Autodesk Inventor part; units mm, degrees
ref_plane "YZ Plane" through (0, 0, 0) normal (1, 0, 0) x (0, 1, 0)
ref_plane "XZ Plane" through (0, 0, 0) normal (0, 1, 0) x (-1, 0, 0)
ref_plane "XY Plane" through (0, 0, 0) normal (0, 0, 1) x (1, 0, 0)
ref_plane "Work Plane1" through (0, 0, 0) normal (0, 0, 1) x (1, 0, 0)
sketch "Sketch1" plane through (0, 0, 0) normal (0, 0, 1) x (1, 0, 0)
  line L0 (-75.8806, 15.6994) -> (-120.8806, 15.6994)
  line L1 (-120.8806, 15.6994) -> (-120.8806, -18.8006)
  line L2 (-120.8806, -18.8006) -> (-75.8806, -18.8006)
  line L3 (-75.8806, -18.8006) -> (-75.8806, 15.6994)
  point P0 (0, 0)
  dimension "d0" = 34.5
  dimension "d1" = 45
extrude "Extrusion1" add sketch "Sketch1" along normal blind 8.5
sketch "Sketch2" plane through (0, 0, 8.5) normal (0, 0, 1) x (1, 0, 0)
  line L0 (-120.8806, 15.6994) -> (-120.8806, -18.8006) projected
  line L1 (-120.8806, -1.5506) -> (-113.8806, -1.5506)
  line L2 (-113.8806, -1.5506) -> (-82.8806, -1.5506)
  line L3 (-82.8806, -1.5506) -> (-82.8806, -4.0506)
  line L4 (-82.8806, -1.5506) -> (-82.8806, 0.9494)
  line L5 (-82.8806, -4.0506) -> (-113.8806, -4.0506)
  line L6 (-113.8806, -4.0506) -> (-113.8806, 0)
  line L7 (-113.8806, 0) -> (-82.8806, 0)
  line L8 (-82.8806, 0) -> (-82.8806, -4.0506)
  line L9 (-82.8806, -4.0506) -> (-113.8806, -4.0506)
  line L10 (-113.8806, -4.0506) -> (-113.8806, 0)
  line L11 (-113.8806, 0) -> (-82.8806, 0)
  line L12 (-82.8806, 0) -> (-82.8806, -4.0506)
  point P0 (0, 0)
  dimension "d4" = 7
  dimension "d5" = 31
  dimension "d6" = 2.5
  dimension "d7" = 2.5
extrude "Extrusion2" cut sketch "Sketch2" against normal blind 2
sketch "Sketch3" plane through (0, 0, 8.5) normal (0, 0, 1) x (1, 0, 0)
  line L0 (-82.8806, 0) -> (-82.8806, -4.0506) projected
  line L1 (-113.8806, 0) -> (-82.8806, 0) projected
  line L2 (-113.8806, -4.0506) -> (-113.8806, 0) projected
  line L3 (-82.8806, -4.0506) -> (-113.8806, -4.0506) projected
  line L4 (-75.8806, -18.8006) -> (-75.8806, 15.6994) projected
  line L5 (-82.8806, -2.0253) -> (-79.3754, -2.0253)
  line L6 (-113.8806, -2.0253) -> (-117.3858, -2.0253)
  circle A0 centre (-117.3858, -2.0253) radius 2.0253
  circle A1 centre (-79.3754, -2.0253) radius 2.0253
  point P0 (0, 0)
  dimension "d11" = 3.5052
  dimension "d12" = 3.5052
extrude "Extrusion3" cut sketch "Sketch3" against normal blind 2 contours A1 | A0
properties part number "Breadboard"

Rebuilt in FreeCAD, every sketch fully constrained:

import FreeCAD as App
import Part
import Sketcher

V = App.Vector

doc = App.newDocument("Part")
body = doc.addObject("PartDesign::Body", "Body")

sketch1 = body.newObject("Sketcher::SketchObject", "Sketch")
sketch1.AttachmentSupport = (doc.getObject("XY_Plane"), [""])
sketch1.MapMode = "FlatFace"
sketch1.addGeometry([
    Part.LineSegment(V(-76, -19, 0), V(-76, 16, 0)),
    Part.LineSegment(V(-76, 16, 0), V(-121, 16, 0)),
    Part.LineSegment(V(-121, 16, 0), V(-121, -19, 0)),
    Part.LineSegment(V(-121, -19, 0), V(-76, -19, 0)),
], False)
sketch1.addConstraint([
    Sketcher.Constraint("Coincident", 0, 2, 1, 1),
    Sketcher.Constraint("Coincident", 1, 2, 2, 1),
    Sketcher.Constraint("Coincident", 2, 2, 3, 1),
    Sketcher.Constraint("Coincident", 3, 2, 0, 1),
    Sketcher.Constraint("Vertical", 0),
    Sketcher.Constraint("Horizontal", 1),
    Sketcher.Constraint("Vertical", 2),
    Sketcher.Constraint("Horizontal", 3),
    Sketcher.Constraint("DistanceX", 1, 2, 1, 1, 45.0),
    Sketcher.Constraint("DistanceY", 0, 1, 0, 2, 34.5),
    Sketcher.Constraint("DistanceX", 0, 2, -1, 1, 75.8806),
    Sketcher.Constraint("DistanceY", -1, 1, 0, 2, 15.6994),
])
pad1 = body.newObject("PartDesign::Pad", "Pad")
pad1.Profile = sketch1
pad1.Length = 8.5

sketch2 = body.newObject("Sketcher::SketchObject", "Sketch001")
sketch2.AttachmentSupport = (doc.getObject("XY_Plane"), [""])
sketch2.MapMode = "FlatFace"
sketch2.AttachmentOffset = App.Placement(V(0, 0, 8.5), App.Rotation())
sketch2.addGeometry([
    Part.LineSegment(V(-113.9, 0, 0), V(-113.9, -4.1, 0)),
    Part.LineSegment(V(-113.9, -4.1, 0), V(-82.9, -4.1, 0)),
    Part.LineSegment(V(-82.9, -4.1, 0), V(-82.9, 0, 0)),
    Part.LineSegment(V(-82.9, 0, 0), V(-113.9, 0, 0)),
], False)
sketch2.addConstraint([
    Sketcher.Constraint("Coincident", 0, 2, 1, 1),
    Sketcher.Constraint("Coincident", 1, 2, 2, 1),
    Sketcher.Constraint("Coincident", 2, 2, 3, 1),
    Sketcher.Constraint("Coincident", 3, 2, 0, 1),
    Sketcher.Constraint("Vertical", 0),
    Sketcher.Constraint("Horizontal", 1),
    Sketcher.Constraint("Vertical", 2),
    Sketcher.Constraint("Horizontal", 3),
    Sketcher.Constraint("PointOnObject", 2, 2, -1),
    Sketcher.Constraint("DistanceX", 1, 1, 1, 2, 31.0),
    Sketcher.Constraint("DistanceY", 0, 2, 0, 1, 4.0506),
    Sketcher.Constraint("DistanceX", 0, 2, -1, 1, 113.8806),
])
pocket1 = body.newObject("PartDesign::Pocket", "Pocket")
pocket1.Profile = sketch2
pocket1.Length = 2

sketch3 = body.newObject("Sketcher::SketchObject", "Sketch002")
sketch3.AttachmentSupport = (doc.getObject("XY_Plane"), [""])
sketch3.MapMode = "FlatFace"
sketch3.AttachmentOffset = App.Placement(V(0, 0, 8.5), App.Rotation())
sketch3.addGeometry([
    Part.Circle(V(-79.4, -2, 0), V(0, 0, 1), 2),
    Part.Circle(V(-117.4, -2, 0), V(0, 0, 1), 2),
], False)
sketch3.addConstraint([
    Sketcher.Constraint("Equal", 0, 1),
    Sketcher.Constraint("Horizontal", 0, 3, 1, 3),
    Sketcher.Constraint("Diameter", 0, 4.0506),
    Sketcher.Constraint("DistanceX", 0, 3, -1, 1, 79.3754),
    Sketcher.Constraint("DistanceY", 0, 3, -1, 1, 2.0253),
    Sketcher.Constraint("DistanceX", 1, 3, -1, 1, 117.3858),
])
pocket2 = body.newObject("PartDesign::Pocket", "Pocket001")
pocket2.Profile = sketch3
pocket2.Length = 2

doc.recompute()
